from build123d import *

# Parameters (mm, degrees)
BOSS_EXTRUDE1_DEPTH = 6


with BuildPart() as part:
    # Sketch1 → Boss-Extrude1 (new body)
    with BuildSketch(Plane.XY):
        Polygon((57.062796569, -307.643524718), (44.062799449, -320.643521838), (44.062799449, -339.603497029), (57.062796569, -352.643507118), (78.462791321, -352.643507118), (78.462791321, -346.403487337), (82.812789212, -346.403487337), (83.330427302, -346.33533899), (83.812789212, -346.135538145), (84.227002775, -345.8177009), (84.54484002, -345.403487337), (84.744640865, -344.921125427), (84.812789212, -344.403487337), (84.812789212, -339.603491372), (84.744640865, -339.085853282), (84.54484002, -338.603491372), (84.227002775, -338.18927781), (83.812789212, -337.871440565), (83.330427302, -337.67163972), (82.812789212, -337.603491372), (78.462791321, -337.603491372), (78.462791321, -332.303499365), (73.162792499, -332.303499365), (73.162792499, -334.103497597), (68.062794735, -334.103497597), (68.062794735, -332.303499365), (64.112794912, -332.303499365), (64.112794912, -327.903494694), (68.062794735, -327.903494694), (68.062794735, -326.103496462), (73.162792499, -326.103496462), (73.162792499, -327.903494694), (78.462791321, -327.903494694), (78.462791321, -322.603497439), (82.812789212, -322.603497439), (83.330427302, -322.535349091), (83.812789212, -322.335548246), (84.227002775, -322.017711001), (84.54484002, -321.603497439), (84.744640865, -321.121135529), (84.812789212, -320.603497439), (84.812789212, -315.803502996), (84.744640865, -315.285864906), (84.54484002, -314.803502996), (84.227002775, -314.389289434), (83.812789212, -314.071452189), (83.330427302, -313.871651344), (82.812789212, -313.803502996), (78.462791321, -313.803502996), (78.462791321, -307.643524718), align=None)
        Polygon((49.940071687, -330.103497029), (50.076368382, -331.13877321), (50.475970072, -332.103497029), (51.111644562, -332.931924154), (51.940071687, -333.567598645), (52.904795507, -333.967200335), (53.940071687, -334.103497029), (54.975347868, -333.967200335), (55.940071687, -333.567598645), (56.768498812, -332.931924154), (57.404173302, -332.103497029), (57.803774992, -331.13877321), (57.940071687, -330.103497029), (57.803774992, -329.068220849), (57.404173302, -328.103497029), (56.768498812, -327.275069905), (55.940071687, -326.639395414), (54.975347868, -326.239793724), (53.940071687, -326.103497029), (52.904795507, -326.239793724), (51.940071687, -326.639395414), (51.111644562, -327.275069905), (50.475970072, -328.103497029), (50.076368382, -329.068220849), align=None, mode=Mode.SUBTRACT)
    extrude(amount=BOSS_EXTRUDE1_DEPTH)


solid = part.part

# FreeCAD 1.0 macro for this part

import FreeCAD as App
import Part
import Sketcher
from FreeCAD import Vector
Q = App.Units.Quantity

doc = App.newDocument("Part")
params = doc.addObject("Spreadsheet::Sheet", "Params")
for row, (alias, value) in enumerate([
    ("sketch1_width", "5.299999 mm"),
    ("sketch1_height", "1.799998 mm"),
    ("sketch1_width2", "3.95 mm"),
    ("pad1_length", "6 mm"),
], start=1):
    params.set(f"A{row}", alias)
    params.set(f"B{row}", "=" + value)
    params.setAlias(f"B{row}", alias)

body = doc.addObject("PartDesign::Body", "Body")

# Sketch on XY plane
sketch1 = doc.addObject("Sketcher::SketchObject", "Sketch")
body.addObject(sketch1)
sketch1.AttachmentSupport = (doc.XY_Plane, [""])
sketch1.MapMode = "FlatFace"
sketch1.addGeometry([
    Part.LineSegment(Vector(57.1, -307.6, 0), Vector(44.1, -320.6, 0)),  # 0
    Part.LineSegment(Vector(44.1, -320.6, 0), Vector(44.1, -339.6, 0)),  # 1
    Part.LineSegment(Vector(44.1, -339.6, 0), Vector(57.1, -352.6, 0)),  # 2
    Part.LineSegment(Vector(57.1, -352.6, 0), Vector(78.5, -352.6, 0)),  # 3
    Part.LineSegment(Vector(78.5, -352.6, 0), Vector(78.5, -346.4, 0)),  # 4
    Part.LineSegment(Vector(78.5, -346.4, 0), Vector(82.8, -346.4, 0)),  # 5
    Part.LineSegment(Vector(82.8, -346.4, 0), Vector(83.3, -346.3, 0)),  # 6
    Part.LineSegment(Vector(83.3, -346.3, 0), Vector(83.8, -346.1, 0)),  # 7
    Part.LineSegment(Vector(83.8, -346.1, 0), Vector(84.2, -345.8, 0)),  # 8
    Part.LineSegment(Vector(84.2, -345.8, 0), Vector(84.5, -345.4, 0)),  # 9
    Part.LineSegment(Vector(84.5, -345.4, 0), Vector(84.7, -344.9, 0)),  # 10
    Part.LineSegment(Vector(84.7, -344.9, 0), Vector(84.8, -344.4, 0)),  # 11
    Part.LineSegment(Vector(84.8, -344.4, 0), Vector(84.8, -339.6, 0)),  # 12
    Part.LineSegment(Vector(84.8, -339.6, 0), Vector(84.7, -339.1, 0)),  # 13
    Part.LineSegment(Vector(84.7, -339.1, 0), Vector(84.5, -338.6, 0)),  # 14
    Part.LineSegment(Vector(84.5, -338.6, 0), Vector(84.2, -338.2, 0)),  # 15
    Part.LineSegment(Vector(84.2, -338.2, 0), Vector(83.8, -337.9, 0)),  # 16
    Part.LineSegment(Vector(83.8, -337.9, 0), Vector(83.3, -337.7, 0)),  # 17
    Part.LineSegment(Vector(83.3, -337.7, 0), Vector(82.8, -337.6, 0)),  # 18
    Part.LineSegment(Vector(82.8, -337.6, 0), Vector(78.5, -337.6, 0)),  # 19
    Part.LineSegment(Vector(78.5, -337.6, 0), Vector(78.5, -332.3, 0)),  # 20
    Part.LineSegment(Vector(78.5, -332.3, 0), Vector(73.2, -332.3, 0)),  # 21
    Part.LineSegment(Vector(73.2, -332.3, 0), Vector(73.2, -334.1, 0)),  # 22
    Part.LineSegment(Vector(73.2, -334.1, 0), Vector(68.1, -334.1, 0)),  # 23
    Part.LineSegment(Vector(68.1, -334.1, 0), Vector(68.1, -332.3, 0)),  # 24
    Part.LineSegment(Vector(68.1, -332.3, 0), Vector(64.1, -332.3, 0)),  # 25
    Part.LineSegment(Vector(64.1, -332.3, 0), Vector(64.1, -327.9, 0)),  # 26
    Part.LineSegment(Vector(64.1, -327.9, 0), Vector(68.1, -327.9, 0)),  # 27
    Part.LineSegment(Vector(68.1, -327.9, 0), Vector(68.1, -326.1, 0)),  # 28
    Part.LineSegment(Vector(68.1, -326.1, 0), Vector(73.2, -326.1, 0)),  # 29
    Part.LineSegment(Vector(73.2, -326.1, 0), Vector(73.2, -327.9, 0)),  # 30
    Part.LineSegment(Vector(73.2, -327.9, 0), Vector(78.5, -327.9, 0)),  # 31
    Part.LineSegment(Vector(78.5, -327.9, 0), Vector(78.5, -322.6, 0)),  # 32
    Part.LineSegment(Vector(78.5, -322.6, 0), Vector(82.8, -322.6, 0)),  # 33
    Part.LineSegment(Vector(82.8, -322.6, 0), Vector(83.3, -322.5, 0)),  # 34
    Part.LineSegment(Vector(83.3, -322.5, 0), Vector(83.8, -322.3, 0)),  # 35
    Part.LineSegment(Vector(83.8, -322.3, 0), Vector(84.2, -322, 0)),  # 36
    Part.LineSegment(Vector(84.2, -322, 0), Vector(84.5, -321.6, 0)),  # 37
    Part.LineSegment(Vector(84.5, -321.6, 0), Vector(84.7, -321.1, 0)),  # 38
    Part.LineSegment(Vector(84.7, -321.1, 0), Vector(84.8, -320.6, 0)),  # 39
    Part.LineSegment(Vector(84.8, -320.6, 0), Vector(84.8, -315.8, 0)),  # 40
    Part.LineSegment(Vector(84.8, -315.8, 0), Vector(84.7, -315.3, 0)),  # 41
    Part.LineSegment(Vector(84.7, -315.3, 0), Vector(84.5, -314.8, 0)),  # 42
    Part.LineSegment(Vector(84.5, -314.8, 0), Vector(84.2, -314.4, 0)),  # 43
    Part.LineSegment(Vector(84.2, -314.4, 0), Vector(83.8, -314.1, 0)),  # 44
    Part.LineSegment(Vector(83.8, -314.1, 0), Vector(83.3, -313.9, 0)),  # 45
    Part.LineSegment(Vector(83.3, -313.9, 0), Vector(82.8, -313.8, 0)),  # 46
    Part.LineSegment(Vector(82.8, -313.8, 0), Vector(78.5, -313.8, 0)),  # 47
    Part.LineSegment(Vector(78.5, -313.8, 0), Vector(78.5, -307.6, 0)),  # 48
    Part.LineSegment(Vector(78.5, -307.6, 0), Vector(57.1, -307.6, 0)),  # 49
    Part.LineSegment(Vector(50.1, -331.1, 0), Vector(49.9, -330.1, 0)),  # 50
    Part.LineSegment(Vector(49.9, -330.1, 0), Vector(50.1, -329.1, 0)),  # 51
    Part.LineSegment(Vector(50.1, -329.1, 0), Vector(50.5, -328.1, 0)),  # 52
    Part.LineSegment(Vector(50.5, -328.1, 0), Vector(51.1, -327.3, 0)),  # 53
    Part.LineSegment(Vector(51.1, -327.3, 0), Vector(51.9, -326.6, 0)),  # 54
    Part.LineSegment(Vector(51.9, -326.6, 0), Vector(52.9, -326.2, 0)),  # 55
    Part.LineSegment(Vector(52.9, -326.2, 0), Vector(53.9, -326.1, 0)),  # 56
    Part.LineSegment(Vector(53.9, -326.1, 0), Vector(55, -326.2, 0)),  # 57
    Part.LineSegment(Vector(55, -326.2, 0), Vector(55.9, -326.6, 0)),  # 58
    Part.LineSegment(Vector(55.9, -326.6, 0), Vector(56.8, -327.3, 0)),  # 59
    Part.LineSegment(Vector(56.8, -327.3, 0), Vector(57.4, -328.1, 0)),  # 60
    Part.LineSegment(Vector(57.4, -328.1, 0), Vector(57.8, -329.1, 0)),  # 61
    Part.LineSegment(Vector(57.8, -329.1, 0), Vector(57.9, -330.1, 0)),  # 62
    Part.LineSegment(Vector(57.9, -330.1, 0), Vector(57.8, -331.1, 0)),  # 63
    Part.LineSegment(Vector(57.8, -331.1, 0), Vector(57.4, -332.1, 0)),  # 64
    Part.LineSegment(Vector(57.4, -332.1, 0), Vector(56.8, -332.9, 0)),  # 65
    Part.LineSegment(Vector(56.8, -332.9, 0), Vector(55.9, -333.6, 0)),  # 66
    Part.LineSegment(Vector(55.9, -333.6, 0), Vector(55, -334, 0)),  # 67
    Part.LineSegment(Vector(55, -334, 0), Vector(53.9, -334.1, 0)),  # 68
    Part.LineSegment(Vector(53.9, -334.1, 0), Vector(52.9, -334, 0)),  # 69
    Part.LineSegment(Vector(52.9, -334, 0), Vector(51.9, -333.6, 0)),  # 70
    Part.LineSegment(Vector(51.9, -333.6, 0), Vector(51.1, -332.9, 0)),  # 71
    Part.LineSegment(Vector(51.1, -332.9, 0), Vector(50.5, -332.1, 0)),  # 72
    Part.LineSegment(Vector(50.5, -332.1, 0), Vector(50.1, -331.1, 0)),  # 73
], False)
sketch1.addConstraint([
    Sketcher.Constraint("Coincident", 0, 2, 1, 1),
    Sketcher.Constraint("Coincident", 1, 2, 2, 1),
    Sketcher.Constraint("Coincident", 2, 2, 3, 1),
    Sketcher.Constraint("Coincident", 3, 2, 4, 1),
    Sketcher.Constraint("Coincident", 4, 2, 5, 1),
    Sketcher.Constraint("Coincident", 5, 2, 6, 1),
    Sketcher.Constraint("Coincident", 6, 2, 7, 1),
    Sketcher.Constraint("Coincident", 7, 2, 8, 1),
    Sketcher.Constraint("Coincident", 8, 2, 9, 1),
    Sketcher.Constraint("Coincident", 9, 2, 10, 1),
    Sketcher.Constraint("Coincident", 10, 2, 11, 1),
    Sketcher.Constraint("Coincident", 11, 2, 12, 1),
    Sketcher.Constraint("Coincident", 12, 2, 13, 1),
    Sketcher.Constraint("Coincident", 13, 2, 14, 1),
    Sketcher.Constraint("Coincident", 14, 2, 15, 1),
    Sketcher.Constraint("Coincident", 15, 2, 16, 1),
    Sketcher.Constraint("Coincident", 16, 2, 17, 1),
    Sketcher.Constraint("Coincident", 17, 2, 18, 1),
    Sketcher.Constraint("Coincident", 18, 2, 19, 1),
    Sketcher.Constraint("Coincident", 19, 2, 20, 1),
    Sketcher.Constraint("Coincident", 20, 2, 21, 1),
    Sketcher.Constraint("Coincident", 21, 2, 22, 1),
    Sketcher.Constraint("Coincident", 22, 2, 23, 1),
    Sketcher.Constraint("Coincident", 23, 2, 24, 1),
    Sketcher.Constraint("Coincident", 24, 2, 25, 1),
    Sketcher.Constraint("Coincident", 25, 2, 26, 1),
    Sketcher.Constraint("Coincident", 26, 2, 27, 1),
    Sketcher.Constraint("Coincident", 27, 2, 28, 1),
    Sketcher.Constraint("Coincident", 28, 2, 29, 1),
    Sketcher.Constraint("Coincident", 29, 2, 30, 1),
    Sketcher.Constraint("Coincident", 30, 2, 31, 1),
    Sketcher.Constraint("Coincident", 31, 2, 32, 1),
    Sketcher.Constraint("Coincident", 32, 2, 33, 1),
    Sketcher.Constraint("Coincident", 33, 2, 34, 1),
    Sketcher.Constraint("Coincident", 34, 2, 35, 1),
    Sketcher.Constraint("Coincident", 35, 2, 36, 1),
    Sketcher.Constraint("Coincident", 36, 2, 37, 1),
    Sketcher.Constraint("Coincident", 37, 2, 38, 1),
    Sketcher.Constraint("Coincident", 38, 2, 39, 1),
    Sketcher.Constraint("Coincident", 39, 2, 40, 1),
    Sketcher.Constraint("Coincident", 40, 2, 41, 1),
    Sketcher.Constraint("Coincident", 41, 2, 42, 1),
    Sketcher.Constraint("Coincident", 42, 2, 43, 1),
    Sketcher.Constraint("Coincident", 43, 2, 44, 1),
    Sketcher.Constraint("Coincident", 44, 2, 45, 1),
    Sketcher.Constraint("Coincident", 45, 2, 46, 1),
    Sketcher.Constraint("Coincident", 46, 2, 47, 1),
    Sketcher.Constraint("Coincident", 47, 2, 48, 1),
    Sketcher.Constraint("Coincident", 48, 2, 49, 1),
    Sketcher.Constraint("Coincident", 49, 2, 0, 1),
    Sketcher.Constraint("Coincident", 50, 2, 51, 1),
    Sketcher.Constraint("Coincident", 51, 2, 52, 1),
    Sketcher.Constraint("Coincident", 52, 2, 53, 1),
    Sketcher.Constraint("Coincident", 53, 2, 54, 1),
    Sketcher.Constraint("Coincident", 54, 2, 55, 1),
    Sketcher.Constraint("Coincident", 55, 2, 56, 1),
    Sketcher.Constraint("Coincident", 56, 2, 57, 1),
    Sketcher.Constraint("Coincident", 57, 2, 58, 1),
    Sketcher.Constraint("Coincident", 58, 2, 59, 1),
    Sketcher.Constraint("Coincident", 59, 2, 60, 1),
    Sketcher.Constraint("Coincident", 60, 2, 61, 1),
    Sketcher.Constraint("Coincident", 61, 2, 62, 1),
    Sketcher.Constraint("Coincident", 62, 2, 63, 1),
    Sketcher.Constraint("Coincident", 63, 2, 64, 1),
    Sketcher.Constraint("Coincident", 64, 2, 65, 1),
    Sketcher.Constraint("Coincident", 65, 2, 66, 1),
    Sketcher.Constraint("Coincident", 66, 2, 67, 1),
    Sketcher.Constraint("Coincident", 67, 2, 68, 1),
    Sketcher.Constraint("Coincident", 68, 2, 69, 1),
    Sketcher.Constraint("Coincident", 69, 2, 70, 1),
    Sketcher.Constraint("Coincident", 70, 2, 71, 1),
    Sketcher.Constraint("Coincident", 71, 2, 72, 1),
    Sketcher.Constraint("Coincident", 72, 2, 73, 1),
    Sketcher.Constraint("Coincident", 73, 2, 50, 1),
    Sketcher.Constraint("Vertical", 1),
    Sketcher.Constraint("Horizontal", 3),
    Sketcher.Constraint("Vertical", 4),
    Sketcher.Constraint("Horizontal", 5),
    Sketcher.Constraint("Vertical", 12),
    Sketcher.Constraint("Horizontal", 19),
    Sketcher.Constraint("Vertical", 20),
    Sketcher.Constraint("Horizontal", 21),
    Sketcher.Constraint("Vertical", 22),
    Sketcher.Constraint("Horizontal", 23),
    Sketcher.Constraint("Vertical", 24),
    Sketcher.Constraint("Horizontal", 25),
    Sketcher.Constraint("Vertical", 26),
    Sketcher.Constraint("Horizontal", 27),
    Sketcher.Constraint("Vertical", 28),
    Sketcher.Constraint("Horizontal", 29),
    Sketcher.Constraint("Vertical", 30),
    Sketcher.Constraint("Horizontal", 31),
    Sketcher.Constraint("Vertical", 32),
    Sketcher.Constraint("Horizontal", 33),
    Sketcher.Constraint("Vertical", 40),
    Sketcher.Constraint("Horizontal", 47),
    Sketcher.Constraint("Vertical", 48),
    Sketcher.Constraint("Horizontal", 49),
    Sketcher.Constraint("Perpendicular", 6, 13),
    Sketcher.Constraint("Perpendicular", 7, 14),
    Sketcher.Constraint("Perpendicular", 8, 15),
    Sketcher.Constraint("Perpendicular", 9, 16),
    Sketcher.Constraint("Perpendicular", 10, 17),
    Sketcher.Constraint("Perpendicular", 11, 18),
    Sketcher.Constraint("Perpendicular", 13, 34),
    Sketcher.Constraint("Perpendicular", 14, 35),
    Sketcher.Constraint("Perpendicular", 15, 36),
    Sketcher.Constraint("Perpendicular", 16, 37),
    Sketcher.Constraint("Perpendicular", 17, 38),
    Sketcher.Constraint("Perpendicular", 18, 39),
    Sketcher.Constraint("Perpendicular", 34, 41),
    Sketcher.Constraint("Perpendicular", 35, 42),
    Sketcher.Constraint("Perpendicular", 36, 43),
    Sketcher.Constraint("Perpendicular", 37, 44),
    Sketcher.Constraint("Perpendicular", 38, 45),
    Sketcher.Constraint("Perpendicular", 39, 46),
    Sketcher.Constraint("Parallel", 41, 50),
    Sketcher.Constraint("Perpendicular", 46, 51),
    Sketcher.Constraint("Perpendicular", 45, 52),
    Sketcher.Constraint("Perpendicular", 44, 53),
    Sketcher.Constraint("Perpendicular", 43, 54),
    Sketcher.Constraint("Perpendicular", 42, 55),
    Sketcher.Constraint("Perpendicular", 50, 56),
    Sketcher.Constraint("Perpendicular", 51, 57),
    Sketcher.Constraint("Perpendicular", 52, 58),
    Sketcher.Constraint("Perpendicular", 53, 59),
    Sketcher.Constraint("Perpendicular", 54, 60),
    Sketcher.Constraint("Perpendicular", 55, 61),
    Sketcher.Constraint("Perpendicular", 56, 62),
    Sketcher.Constraint("Perpendicular", 57, 63),
    Sketcher.Constraint("Perpendicular", 58, 64),
    Sketcher.Constraint("Perpendicular", 59, 65),
    Sketcher.Constraint("Perpendicular", 60, 66),
    Sketcher.Constraint("Perpendicular", 61, 67),
    Sketcher.Constraint("Perpendicular", 62, 68),
    Sketcher.Constraint("Perpendicular", 63, 69),
    Sketcher.Constraint("Perpendicular", 64, 70),
    Sketcher.Constraint("Perpendicular", 65, 71),
    Sketcher.Constraint("Perpendicular", 66, 72),
    Sketcher.Constraint("Perpendicular", 67, 73),
    Sketcher.Constraint("Horizontal", 21, 2, 24, 2),
    Sketcher.Constraint("Horizontal", 27, 2, 30, 2),
    Sketcher.Constraint("Horizontal", 29, 2, 56, 2),
    Sketcher.Constraint("Horizontal", 55, 2, 57, 2),
    Sketcher.Constraint("Horizontal", 54, 2, 58, 2),
    Sketcher.Constraint("Horizontal", 53, 2, 59, 2),
    Sketcher.Constraint("Horizontal", 52, 2, 60, 2),
    Sketcher.Constraint("Horizontal", 51, 2, 61, 2),
    Sketcher.Constraint("Horizontal", 50, 2, 62, 2),
    Sketcher.Constraint("Horizontal", 23, 2, 68, 2),
    Sketcher.Constraint("Horizontal", 67, 2, 69, 2),
    Sketcher.Constraint("Horizontal", 66, 2, 70, 2),
    Sketcher.Constraint("Horizontal", 65, 2, 71, 2),
    Sketcher.Constraint("Horizontal", 64, 2, 72, 2),
    Sketcher.Constraint("Horizontal", 63, 2, 73, 2),
    Sketcher.Constraint("Vertical", 10, 2, 13, 2),
    Sketcher.Constraint("Vertical", 9, 2, 14, 2),
    Sketcher.Constraint("Vertical", 8, 2, 15, 2),
    Sketcher.Constraint("Vertical", 7, 2, 16, 2),
    Sketcher.Constraint("Vertical", 6, 2, 17, 2),
    Sketcher.Constraint("Vertical", 5, 2, 18, 2),
    Sketcher.Constraint("Vertical", 4, 2, 19, 2),
    Sketcher.Constraint("Vertical", 24, 2, 27, 2),
    Sketcher.Constraint("Vertical", 22, 2, 29, 2),
    Sketcher.Constraint("Vertical", 20, 2, 31, 2),
    Sketcher.Constraint("Vertical", 18, 2, 33, 2),
    Sketcher.Constraint("Vertical", 17, 2, 34, 2),
    Sketcher.Constraint("Vertical", 16, 2, 35, 2),
    Sketcher.Constraint("Vertical", 15, 2, 36, 2),
    Sketcher.Constraint("Vertical", 14, 2, 37, 2),
    Sketcher.Constraint("Vertical", 13, 2, 38, 2),
    Sketcher.Constraint("Vertical", 12, 2, 39, 2),
    Sketcher.Constraint("Vertical", 38, 2, 41, 2),
    Sketcher.Constraint("Vertical", 37, 2, 42, 2),
    Sketcher.Constraint("Vertical", 36, 2, 43, 2),
    Sketcher.Constraint("Vertical", 35, 2, 44, 2),
    Sketcher.Constraint("Vertical", 34, 2, 45, 2),
    Sketcher.Constraint("Vertical", 33, 2, 46, 2),
    Sketcher.Constraint("Vertical", 32, 2, 47, 2),
    Sketcher.Constraint("Vertical", 2, 2, 49, 2),
    Sketcher.Constraint("Vertical", 61, 2, 63, 2),
    Sketcher.Constraint("Vertical", 60, 2, 64, 2),
    Sketcher.Constraint("Vertical", 59, 2, 65, 2),
    Sketcher.Constraint("Vertical", 58, 2, 66, 2),
    Sketcher.Constraint("Vertical", 57, 2, 67, 2),
    Sketcher.Constraint("Vertical", 56, 2, 68, 2),
    Sketcher.Constraint("Vertical", 55, 2, 69, 2),
    Sketcher.Constraint("Vertical", 54, 2, 70, 2),
    Sketcher.Constraint("Equal", 24, 28),
    Sketcher.Constraint("Equal", 31, 32),
    Sketcher.Constraint("Equal", 12, 40),
    Sketcher.Constraint("Equal", 6, 7),
    Sketcher.Constraint("Equal", 7, 8),
    Sketcher.Constraint("Equal", 8, 9),
    Sketcher.Constraint("Equal", 9, 10),
    Sketcher.Constraint("Equal", 10, 11),
    Sketcher.Constraint("Equal", 51, 52),
    Sketcher.Constraint("Equal", 52, 53),
    Sketcher.Constraint("Equal", 53, 54),
    Sketcher.Constraint("Equal", 54, 55),
    Sketcher.Constraint("Equal", 55, 56),
    Sketcher.Constraint("Angle", 0, Q("-135 deg")),
    Sketcher.Constraint("DistanceX", 21, 2, 21, 1, 5.299999),
    Sketcher.Constraint("DistanceY", 22, 2, 22, 1, 1.799998),
    Sketcher.Constraint("Angle", 6, Q("7.5 deg")),
    Sketcher.Constraint("Angle", 7, Q("22.5 deg")),
    Sketcher.Constraint("Angle", 8, Q("37.5 deg")),
    Sketcher.Constraint("DistanceX", 25, 2, 25, 1, 3.95),
    Sketcher.Constraint("DistanceY", 4, 1, 4, 2, 6.24002),
    Sketcher.Constraint("DistanceY", 48, 1, 48, 2, 6.159978),
    Sketcher.Constraint("DistanceX", -1, 1, 0, 2, 44.062799),
    Sketcher.Constraint("DistanceY", 8, 2, -1, 1, 345.817701),
    Sketcher.Constraint("DistanceY", 20, 2, -1, 1, 332.303499),
    Sketcher.Constraint("DistanceX", -1, 1, 59, 2, 56.768499),
    Sketcher.Constraint("DistanceY", 66, 2, -1, 1, 333.567599),
    Sketcher.Constraint("DistanceX", 3, 1, 3, 2, 21.399995),
    Sketcher.Constraint("DistanceX", 5, 1, 5, 2, 4.349998),
    Sketcher.Constraint("DistanceX", 23, 2, 23, 1, 5.099998),
    Sketcher.Constraint("DistanceY", 1, 2, 1, 1, 18.959975),
    Sketcher.Constraint("DistanceY", 12, 1, 12, 2, 4.799996),
    Sketcher.Constraint("DistanceY", 20, 1, 20, 2, 5.299992),
    Sketcher.Constraint("DistanceY", 0, 2, -1, 1, 320.643522),
])
sketch1.setExpression("Constraints[202]", "Params.sketch1_width")
sketch1.setExpression("Constraints[203]", "Params.sketch1_height")
sketch1.setExpression("Constraints[207]", "Params.sketch1_width2")
pad1 = doc.addObject("PartDesign::Pad", "Pad")
body.addObject(pad1)
pad1.Profile = sketch1
pad1.setExpression("Length", "Params.pad1_length")

doc.recompute()
